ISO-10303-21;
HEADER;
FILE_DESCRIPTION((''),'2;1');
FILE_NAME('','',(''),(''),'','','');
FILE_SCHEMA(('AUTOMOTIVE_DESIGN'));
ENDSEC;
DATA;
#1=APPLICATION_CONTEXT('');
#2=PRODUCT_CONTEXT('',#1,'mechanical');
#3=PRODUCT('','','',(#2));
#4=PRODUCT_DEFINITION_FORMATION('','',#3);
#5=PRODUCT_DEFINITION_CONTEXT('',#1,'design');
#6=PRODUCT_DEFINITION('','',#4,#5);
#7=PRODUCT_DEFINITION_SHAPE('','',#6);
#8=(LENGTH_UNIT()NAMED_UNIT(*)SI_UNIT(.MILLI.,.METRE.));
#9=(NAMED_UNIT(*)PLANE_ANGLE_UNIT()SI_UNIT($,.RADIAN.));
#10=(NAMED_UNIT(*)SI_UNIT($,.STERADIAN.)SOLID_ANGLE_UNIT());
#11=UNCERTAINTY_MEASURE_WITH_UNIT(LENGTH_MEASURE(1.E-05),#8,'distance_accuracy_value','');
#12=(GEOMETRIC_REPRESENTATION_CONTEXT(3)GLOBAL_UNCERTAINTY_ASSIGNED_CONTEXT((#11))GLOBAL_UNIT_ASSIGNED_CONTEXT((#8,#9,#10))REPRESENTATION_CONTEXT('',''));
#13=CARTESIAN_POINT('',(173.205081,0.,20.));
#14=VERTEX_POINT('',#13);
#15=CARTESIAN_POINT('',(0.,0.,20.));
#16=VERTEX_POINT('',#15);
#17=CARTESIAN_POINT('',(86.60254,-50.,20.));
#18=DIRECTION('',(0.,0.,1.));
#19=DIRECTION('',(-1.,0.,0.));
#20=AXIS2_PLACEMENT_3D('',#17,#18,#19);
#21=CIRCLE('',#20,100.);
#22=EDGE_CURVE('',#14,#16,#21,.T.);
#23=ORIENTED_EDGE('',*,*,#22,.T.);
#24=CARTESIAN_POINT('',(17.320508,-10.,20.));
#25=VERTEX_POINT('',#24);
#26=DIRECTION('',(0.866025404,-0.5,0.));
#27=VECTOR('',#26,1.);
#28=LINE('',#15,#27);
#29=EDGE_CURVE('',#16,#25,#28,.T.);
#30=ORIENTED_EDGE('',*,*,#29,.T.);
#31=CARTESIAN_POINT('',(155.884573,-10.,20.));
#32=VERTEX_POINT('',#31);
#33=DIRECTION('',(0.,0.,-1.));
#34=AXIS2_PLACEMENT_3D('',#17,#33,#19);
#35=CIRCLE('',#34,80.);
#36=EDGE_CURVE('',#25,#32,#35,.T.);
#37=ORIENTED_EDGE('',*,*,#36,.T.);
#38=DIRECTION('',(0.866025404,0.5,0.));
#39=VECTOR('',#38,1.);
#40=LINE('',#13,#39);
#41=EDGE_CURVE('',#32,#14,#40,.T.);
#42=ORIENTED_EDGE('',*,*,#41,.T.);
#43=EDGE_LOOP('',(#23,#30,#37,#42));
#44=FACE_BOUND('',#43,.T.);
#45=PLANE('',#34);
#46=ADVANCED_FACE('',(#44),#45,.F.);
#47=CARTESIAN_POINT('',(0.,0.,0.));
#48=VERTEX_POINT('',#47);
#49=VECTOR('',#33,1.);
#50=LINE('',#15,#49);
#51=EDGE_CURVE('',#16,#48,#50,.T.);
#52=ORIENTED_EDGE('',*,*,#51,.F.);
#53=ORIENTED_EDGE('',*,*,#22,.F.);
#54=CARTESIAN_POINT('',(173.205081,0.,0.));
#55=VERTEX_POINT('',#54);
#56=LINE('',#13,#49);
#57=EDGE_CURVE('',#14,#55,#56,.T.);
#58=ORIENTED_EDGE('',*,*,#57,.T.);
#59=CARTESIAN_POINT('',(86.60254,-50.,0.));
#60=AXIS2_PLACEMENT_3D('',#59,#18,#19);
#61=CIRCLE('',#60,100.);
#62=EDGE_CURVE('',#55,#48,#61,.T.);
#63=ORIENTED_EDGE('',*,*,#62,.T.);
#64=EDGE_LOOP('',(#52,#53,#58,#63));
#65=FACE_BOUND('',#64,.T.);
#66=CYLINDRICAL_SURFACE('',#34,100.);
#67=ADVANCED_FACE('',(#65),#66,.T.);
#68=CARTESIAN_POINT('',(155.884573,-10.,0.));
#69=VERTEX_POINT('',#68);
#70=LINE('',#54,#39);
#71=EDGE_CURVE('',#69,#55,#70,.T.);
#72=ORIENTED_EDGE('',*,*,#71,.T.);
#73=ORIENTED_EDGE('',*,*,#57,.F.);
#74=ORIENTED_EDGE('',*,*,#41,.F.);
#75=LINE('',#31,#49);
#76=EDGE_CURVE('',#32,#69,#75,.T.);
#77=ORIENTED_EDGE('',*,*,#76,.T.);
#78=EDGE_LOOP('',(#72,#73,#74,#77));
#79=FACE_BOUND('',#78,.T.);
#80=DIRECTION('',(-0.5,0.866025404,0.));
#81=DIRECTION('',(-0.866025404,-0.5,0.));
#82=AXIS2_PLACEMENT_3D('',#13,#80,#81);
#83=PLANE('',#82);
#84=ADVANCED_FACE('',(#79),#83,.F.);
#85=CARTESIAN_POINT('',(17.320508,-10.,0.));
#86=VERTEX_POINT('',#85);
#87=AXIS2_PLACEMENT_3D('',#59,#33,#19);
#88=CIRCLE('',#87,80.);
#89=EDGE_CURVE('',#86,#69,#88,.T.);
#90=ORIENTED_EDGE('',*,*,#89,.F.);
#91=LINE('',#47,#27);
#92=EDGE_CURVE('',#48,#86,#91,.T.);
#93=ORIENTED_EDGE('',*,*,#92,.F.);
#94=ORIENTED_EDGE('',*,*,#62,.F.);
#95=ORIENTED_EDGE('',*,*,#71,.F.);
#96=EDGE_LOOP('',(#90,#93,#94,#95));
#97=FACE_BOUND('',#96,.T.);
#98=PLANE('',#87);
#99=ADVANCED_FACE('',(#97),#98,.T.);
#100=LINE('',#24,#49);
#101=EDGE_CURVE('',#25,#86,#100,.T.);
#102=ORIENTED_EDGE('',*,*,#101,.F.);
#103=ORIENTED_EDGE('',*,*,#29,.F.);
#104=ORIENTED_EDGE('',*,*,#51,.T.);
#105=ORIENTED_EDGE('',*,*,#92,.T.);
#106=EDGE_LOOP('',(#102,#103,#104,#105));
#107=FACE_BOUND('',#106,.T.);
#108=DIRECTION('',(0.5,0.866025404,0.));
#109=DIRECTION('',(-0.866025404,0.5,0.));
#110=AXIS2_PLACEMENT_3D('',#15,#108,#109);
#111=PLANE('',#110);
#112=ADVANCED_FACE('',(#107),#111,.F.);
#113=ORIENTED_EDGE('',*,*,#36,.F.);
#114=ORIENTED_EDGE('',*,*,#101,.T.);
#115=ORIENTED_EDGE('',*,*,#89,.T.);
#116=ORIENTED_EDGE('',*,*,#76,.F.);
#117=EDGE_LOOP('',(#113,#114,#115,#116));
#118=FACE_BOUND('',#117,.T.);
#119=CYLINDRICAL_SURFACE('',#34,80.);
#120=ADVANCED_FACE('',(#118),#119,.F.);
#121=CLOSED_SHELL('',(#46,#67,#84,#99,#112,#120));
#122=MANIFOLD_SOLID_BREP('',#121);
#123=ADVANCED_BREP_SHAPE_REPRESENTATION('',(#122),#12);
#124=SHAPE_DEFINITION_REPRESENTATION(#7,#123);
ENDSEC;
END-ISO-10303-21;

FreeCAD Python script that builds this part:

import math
import FreeCAD as App
import Part
import Sketcher

V = App.Vector
Q = App.Units.Quantity

doc = App.newDocument("Part")
body = doc.addObject("PartDesign::Body", "Body")

# Sketch on XY plane
sketch1 = body.newObject("Sketcher::SketchObject", "Sketch")
sketch1.AttachmentSupport = (doc.getObject("XY_Plane"), [""])
sketch1.MapMode = "FlatFace"
sketch1.addGeometry([
    Part.LineSegment(V(0, 0, 0), V(17, -10, 0)),
    Part.ArcOfCircle(Part.Circle(V(87, -50, 0), V(0, 0, 1), 80), math.radians(30), math.radians(150)),
    Part.LineSegment(V(156, -10, 0), V(173, 0, 0)),
    Part.ArcOfCircle(Part.Circle(V(87, -50, 0), V(0, 0, 1), 100), math.radians(30), math.radians(150)),
], False)
sketch1.addConstraint([
    Sketcher.Constraint("Coincident", 0, 2, 1, 2),
    Sketcher.Constraint("Coincident", 1, 1, 2, 1),
    Sketcher.Constraint("Coincident", 2, 2, 3, 1),
    Sketcher.Constraint("Coincident", 3, 2, 0, 1),
    Sketcher.Constraint("Coincident", 3, 2, -1, 1),
    Sketcher.Constraint("Coincident", 3, 3, 1, 3),
    Sketcher.Constraint("PointOnObject", 2, 2, -1),
    Sketcher.Constraint("Horizontal", 0, 2, 1, 1),
    Sketcher.Constraint("Radius", 1, Q("80 mm")),
    Sketcher.Constraint("Radius", 3, Q("100 mm")),
    Sketcher.Constraint("Angle", 0, Q("-30 deg")),
    Sketcher.Constraint("DistanceY", 1, 3, -1, 1, Q("50 mm")),
])
pad1 = body.newObject("PartDesign::Pad", "Pad")
pad1.Profile = sketch1
pad1.Length = 20

doc.recompute()
